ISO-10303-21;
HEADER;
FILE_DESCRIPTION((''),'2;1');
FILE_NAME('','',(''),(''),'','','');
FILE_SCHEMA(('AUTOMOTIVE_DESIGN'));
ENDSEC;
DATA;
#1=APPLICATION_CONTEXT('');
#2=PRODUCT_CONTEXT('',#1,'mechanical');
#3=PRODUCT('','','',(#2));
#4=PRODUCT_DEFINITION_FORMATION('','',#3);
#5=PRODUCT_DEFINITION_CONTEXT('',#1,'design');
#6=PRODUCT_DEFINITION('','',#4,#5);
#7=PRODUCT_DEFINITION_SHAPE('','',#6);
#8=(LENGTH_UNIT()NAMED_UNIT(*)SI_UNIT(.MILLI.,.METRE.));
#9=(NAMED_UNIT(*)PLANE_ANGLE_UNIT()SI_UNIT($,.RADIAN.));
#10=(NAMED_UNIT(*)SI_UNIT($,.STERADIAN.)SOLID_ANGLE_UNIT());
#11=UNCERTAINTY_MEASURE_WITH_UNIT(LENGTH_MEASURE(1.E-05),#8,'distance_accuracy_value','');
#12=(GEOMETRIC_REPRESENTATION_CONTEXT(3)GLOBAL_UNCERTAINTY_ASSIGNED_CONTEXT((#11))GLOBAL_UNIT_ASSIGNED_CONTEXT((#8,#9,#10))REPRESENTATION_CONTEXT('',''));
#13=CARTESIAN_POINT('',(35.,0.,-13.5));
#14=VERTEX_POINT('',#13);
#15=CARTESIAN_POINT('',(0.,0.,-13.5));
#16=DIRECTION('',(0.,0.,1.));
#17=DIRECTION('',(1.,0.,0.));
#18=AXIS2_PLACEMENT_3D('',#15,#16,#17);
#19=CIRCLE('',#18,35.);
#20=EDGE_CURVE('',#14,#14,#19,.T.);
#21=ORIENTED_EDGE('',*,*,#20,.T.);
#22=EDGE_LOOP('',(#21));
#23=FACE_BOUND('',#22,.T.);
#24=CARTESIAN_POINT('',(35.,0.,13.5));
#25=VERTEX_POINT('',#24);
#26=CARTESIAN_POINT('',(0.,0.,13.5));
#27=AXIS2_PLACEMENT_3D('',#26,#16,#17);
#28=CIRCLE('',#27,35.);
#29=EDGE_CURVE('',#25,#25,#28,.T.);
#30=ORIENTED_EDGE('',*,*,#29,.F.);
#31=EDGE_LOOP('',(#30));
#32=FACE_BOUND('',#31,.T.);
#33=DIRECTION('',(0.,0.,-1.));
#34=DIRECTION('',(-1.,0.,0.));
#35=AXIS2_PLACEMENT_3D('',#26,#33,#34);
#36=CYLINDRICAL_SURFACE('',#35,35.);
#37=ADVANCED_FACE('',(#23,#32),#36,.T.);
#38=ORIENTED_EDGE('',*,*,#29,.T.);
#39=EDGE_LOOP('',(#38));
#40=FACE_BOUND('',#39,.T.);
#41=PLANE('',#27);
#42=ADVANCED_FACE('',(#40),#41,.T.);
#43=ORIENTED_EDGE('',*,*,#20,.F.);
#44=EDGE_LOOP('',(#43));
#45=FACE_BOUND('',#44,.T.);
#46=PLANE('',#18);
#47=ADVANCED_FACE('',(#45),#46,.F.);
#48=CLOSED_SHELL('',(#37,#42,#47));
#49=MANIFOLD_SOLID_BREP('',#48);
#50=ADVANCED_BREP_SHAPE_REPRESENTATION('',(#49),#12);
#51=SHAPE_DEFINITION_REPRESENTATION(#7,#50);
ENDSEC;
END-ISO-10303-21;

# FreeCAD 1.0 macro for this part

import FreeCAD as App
import Part
import Sketcher
from FreeCAD import Vector

doc = App.newDocument("Part")
params = doc.addObject("Spreadsheet::Sheet", "Params")
for row, (alias, value) in enumerate([
    ("sketch1_diameter", "70 mm"),
    ("pad1_length", "27 mm"),
], start=1):
    params.set(f"A{row}", alias)
    params.set(f"B{row}", "=" + value)
    params.setAlias(f"B{row}", alias)

body = doc.addObject("PartDesign::Body", "Body")

# Sketch on XY plane
sketch1 = doc.addObject("Sketcher::SketchObject", "Sketch")
body.addObject(sketch1)
sketch1.AttachmentSupport = (doc.XY_Plane, [""])
sketch1.MapMode = "FlatFace"
sketch1.addGeometry(Part.Circle(Vector(0, 0, 0), Vector(0, 0, 1), 35), False)
sketch1.addConstraint(Sketcher.Constraint("Coincident", 0, 3, -1, 1))
sketch1.addConstraint(Sketcher.Constraint("Diameter", 0, 70.0))
sketch1.setExpression("Constraints[1]", "Params.sketch1_diameter")
pad1 = doc.addObject("PartDesign::Pad", "Pad")
body.addObject(pad1)
pad1.Profile = sketch1
pad1.setExpression("Length", "Params.pad1_length")
pad1.Midplane = True

doc.recompute()
